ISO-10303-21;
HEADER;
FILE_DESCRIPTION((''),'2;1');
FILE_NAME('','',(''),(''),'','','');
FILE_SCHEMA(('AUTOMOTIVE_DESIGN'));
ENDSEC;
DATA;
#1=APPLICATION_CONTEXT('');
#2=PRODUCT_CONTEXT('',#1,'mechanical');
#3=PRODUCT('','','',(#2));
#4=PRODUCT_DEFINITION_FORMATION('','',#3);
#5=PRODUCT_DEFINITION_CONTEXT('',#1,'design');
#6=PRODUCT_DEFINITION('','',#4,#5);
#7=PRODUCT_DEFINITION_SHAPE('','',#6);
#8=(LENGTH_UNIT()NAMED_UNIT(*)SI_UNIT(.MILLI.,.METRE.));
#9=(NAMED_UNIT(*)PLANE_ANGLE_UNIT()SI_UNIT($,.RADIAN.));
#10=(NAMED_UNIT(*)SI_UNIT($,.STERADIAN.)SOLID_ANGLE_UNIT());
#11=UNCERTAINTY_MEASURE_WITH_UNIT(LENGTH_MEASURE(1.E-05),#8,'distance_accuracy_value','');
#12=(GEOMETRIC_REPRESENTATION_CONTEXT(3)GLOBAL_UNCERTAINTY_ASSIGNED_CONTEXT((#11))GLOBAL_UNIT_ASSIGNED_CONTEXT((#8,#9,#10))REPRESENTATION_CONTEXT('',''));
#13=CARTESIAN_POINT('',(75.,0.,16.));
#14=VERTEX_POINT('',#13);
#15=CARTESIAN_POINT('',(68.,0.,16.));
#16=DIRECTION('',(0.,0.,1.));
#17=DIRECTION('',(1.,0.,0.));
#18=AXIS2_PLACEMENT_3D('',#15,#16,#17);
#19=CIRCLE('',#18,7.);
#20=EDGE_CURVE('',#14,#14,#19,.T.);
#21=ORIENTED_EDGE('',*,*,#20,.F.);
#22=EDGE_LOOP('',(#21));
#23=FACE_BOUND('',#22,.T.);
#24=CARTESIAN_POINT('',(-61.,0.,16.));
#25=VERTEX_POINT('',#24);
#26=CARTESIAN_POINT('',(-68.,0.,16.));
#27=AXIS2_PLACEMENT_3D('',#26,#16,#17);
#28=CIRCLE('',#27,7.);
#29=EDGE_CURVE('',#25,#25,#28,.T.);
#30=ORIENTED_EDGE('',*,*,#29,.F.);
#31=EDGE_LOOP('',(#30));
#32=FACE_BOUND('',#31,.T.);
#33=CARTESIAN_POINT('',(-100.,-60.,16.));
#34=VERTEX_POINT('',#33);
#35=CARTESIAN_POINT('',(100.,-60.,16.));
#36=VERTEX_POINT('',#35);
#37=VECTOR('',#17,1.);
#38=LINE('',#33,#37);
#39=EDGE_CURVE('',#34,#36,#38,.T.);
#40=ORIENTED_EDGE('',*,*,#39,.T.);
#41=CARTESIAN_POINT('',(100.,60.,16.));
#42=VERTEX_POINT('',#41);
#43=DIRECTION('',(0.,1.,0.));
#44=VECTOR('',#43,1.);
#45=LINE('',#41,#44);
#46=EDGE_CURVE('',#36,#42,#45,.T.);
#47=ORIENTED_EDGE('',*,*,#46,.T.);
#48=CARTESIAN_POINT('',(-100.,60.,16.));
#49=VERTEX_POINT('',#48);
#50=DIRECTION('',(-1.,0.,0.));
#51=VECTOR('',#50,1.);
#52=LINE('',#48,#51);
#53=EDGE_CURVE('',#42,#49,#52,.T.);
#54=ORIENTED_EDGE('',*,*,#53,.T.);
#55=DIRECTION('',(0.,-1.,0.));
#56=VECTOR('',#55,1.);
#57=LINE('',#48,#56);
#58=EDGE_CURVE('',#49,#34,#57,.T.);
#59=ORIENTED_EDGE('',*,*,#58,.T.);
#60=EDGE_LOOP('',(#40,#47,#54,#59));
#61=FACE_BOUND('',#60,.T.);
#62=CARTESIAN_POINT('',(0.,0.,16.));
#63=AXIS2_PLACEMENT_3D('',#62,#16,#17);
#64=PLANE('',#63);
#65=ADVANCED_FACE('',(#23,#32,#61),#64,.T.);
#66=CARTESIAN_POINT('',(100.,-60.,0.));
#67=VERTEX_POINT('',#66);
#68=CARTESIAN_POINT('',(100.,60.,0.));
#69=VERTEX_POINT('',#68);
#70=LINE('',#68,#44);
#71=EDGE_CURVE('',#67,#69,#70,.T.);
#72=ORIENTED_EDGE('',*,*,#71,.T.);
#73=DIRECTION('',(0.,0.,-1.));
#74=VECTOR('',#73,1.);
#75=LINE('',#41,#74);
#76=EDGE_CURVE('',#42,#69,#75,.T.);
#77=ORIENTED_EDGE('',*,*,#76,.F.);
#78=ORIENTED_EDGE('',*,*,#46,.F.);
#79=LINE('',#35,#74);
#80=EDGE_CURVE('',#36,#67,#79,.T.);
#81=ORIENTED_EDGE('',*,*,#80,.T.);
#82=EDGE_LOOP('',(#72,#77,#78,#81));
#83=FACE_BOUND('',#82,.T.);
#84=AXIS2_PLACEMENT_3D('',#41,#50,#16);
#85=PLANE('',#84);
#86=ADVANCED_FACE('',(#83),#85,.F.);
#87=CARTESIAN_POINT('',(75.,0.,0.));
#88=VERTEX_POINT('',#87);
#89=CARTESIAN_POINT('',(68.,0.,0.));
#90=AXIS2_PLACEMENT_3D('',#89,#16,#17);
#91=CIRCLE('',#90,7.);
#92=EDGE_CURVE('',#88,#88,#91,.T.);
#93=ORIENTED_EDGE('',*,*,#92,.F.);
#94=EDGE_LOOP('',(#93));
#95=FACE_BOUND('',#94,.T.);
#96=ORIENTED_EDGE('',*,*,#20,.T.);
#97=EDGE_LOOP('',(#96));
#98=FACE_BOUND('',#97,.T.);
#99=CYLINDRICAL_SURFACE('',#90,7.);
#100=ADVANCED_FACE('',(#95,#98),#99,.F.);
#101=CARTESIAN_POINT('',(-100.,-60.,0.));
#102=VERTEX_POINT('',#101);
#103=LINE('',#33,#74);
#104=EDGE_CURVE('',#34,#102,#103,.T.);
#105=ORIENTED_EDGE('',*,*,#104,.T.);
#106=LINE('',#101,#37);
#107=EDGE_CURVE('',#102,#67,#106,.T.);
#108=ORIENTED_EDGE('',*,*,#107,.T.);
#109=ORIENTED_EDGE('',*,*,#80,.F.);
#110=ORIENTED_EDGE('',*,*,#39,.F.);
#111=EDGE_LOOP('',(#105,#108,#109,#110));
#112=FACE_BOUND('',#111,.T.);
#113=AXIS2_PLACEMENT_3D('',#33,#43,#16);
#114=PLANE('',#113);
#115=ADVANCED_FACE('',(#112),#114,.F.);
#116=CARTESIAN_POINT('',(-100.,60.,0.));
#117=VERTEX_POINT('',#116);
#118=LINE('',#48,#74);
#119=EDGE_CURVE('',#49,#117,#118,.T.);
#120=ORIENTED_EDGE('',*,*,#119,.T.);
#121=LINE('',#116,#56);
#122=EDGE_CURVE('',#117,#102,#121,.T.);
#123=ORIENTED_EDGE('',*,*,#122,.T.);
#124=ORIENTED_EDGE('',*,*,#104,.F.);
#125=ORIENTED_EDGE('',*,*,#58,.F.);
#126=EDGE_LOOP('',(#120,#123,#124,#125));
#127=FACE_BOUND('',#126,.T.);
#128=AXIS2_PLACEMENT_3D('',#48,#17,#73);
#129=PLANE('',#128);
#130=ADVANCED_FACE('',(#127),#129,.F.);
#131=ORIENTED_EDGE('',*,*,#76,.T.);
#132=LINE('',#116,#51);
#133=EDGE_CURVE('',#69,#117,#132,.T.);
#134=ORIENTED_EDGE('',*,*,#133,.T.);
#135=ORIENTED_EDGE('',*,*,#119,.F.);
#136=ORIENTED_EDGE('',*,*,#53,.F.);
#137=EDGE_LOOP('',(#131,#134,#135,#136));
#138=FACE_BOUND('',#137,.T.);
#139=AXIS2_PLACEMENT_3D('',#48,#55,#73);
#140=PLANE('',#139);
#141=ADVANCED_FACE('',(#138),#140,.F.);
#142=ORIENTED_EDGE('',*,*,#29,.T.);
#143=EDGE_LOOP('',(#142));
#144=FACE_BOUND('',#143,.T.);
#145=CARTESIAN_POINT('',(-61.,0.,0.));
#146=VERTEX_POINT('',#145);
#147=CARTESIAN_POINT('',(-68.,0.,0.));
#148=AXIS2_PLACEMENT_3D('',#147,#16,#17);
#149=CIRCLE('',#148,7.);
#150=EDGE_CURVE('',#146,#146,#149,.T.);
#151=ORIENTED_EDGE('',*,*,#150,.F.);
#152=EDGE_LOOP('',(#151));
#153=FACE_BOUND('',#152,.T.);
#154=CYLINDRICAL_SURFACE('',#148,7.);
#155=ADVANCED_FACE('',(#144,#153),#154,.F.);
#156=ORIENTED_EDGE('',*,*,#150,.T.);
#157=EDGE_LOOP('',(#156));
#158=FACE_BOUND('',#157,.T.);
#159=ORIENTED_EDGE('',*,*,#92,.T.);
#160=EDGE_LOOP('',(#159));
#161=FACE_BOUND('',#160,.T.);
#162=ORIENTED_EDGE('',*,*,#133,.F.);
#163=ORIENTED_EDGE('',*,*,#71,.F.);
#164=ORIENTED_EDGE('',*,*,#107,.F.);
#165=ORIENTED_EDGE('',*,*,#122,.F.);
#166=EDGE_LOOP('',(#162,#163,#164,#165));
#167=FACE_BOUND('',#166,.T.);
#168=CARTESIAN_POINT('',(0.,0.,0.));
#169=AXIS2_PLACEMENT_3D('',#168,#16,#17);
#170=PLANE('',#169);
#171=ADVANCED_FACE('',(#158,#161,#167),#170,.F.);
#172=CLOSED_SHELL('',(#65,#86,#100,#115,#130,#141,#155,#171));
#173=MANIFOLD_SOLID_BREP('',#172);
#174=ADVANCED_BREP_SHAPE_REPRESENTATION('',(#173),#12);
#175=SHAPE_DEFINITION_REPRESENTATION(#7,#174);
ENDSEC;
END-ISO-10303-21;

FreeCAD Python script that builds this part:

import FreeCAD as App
import Part
import Sketcher
Q = App.Units.Quantity

doc = App.newDocument("Part")
body = doc.addObject("PartDesign::Body", "Body")

# Sketch on XY plane
sketch1 = body.newObject("Sketcher::SketchObject", "Sketch")
sketch1.AttachmentSupport = (doc.getObject("XY_Plane"), [""])
sketch1.MapMode = "FlatFace"
sketch1.addGeometry(Part.LineSegment(App.Vector(-100, 60, 0), App.Vector(-100, -60, 0)), False)
sketch1.addGeometry(Part.LineSegment(App.Vector(-100, -60, 0), App.Vector(100, -60, 0)), False)
sketch1.addGeometry(Part.LineSegment(App.Vector(100, -60, 0), App.Vector(100, 60, 0)), False)
sketch1.addGeometry(Part.LineSegment(App.Vector(100, 60, 0), App.Vector(-100, 60, 0)), False)
sketch1.addConstraint(Sketcher.Constraint("Coincident", 0, 2, 1, 1))
sketch1.addConstraint(Sketcher.Constraint("Coincident", 1, 2, 2, 1))
sketch1.addConstraint(Sketcher.Constraint("Coincident", 2, 2, 3, 1))
sketch1.addConstraint(Sketcher.Constraint("Coincident", 3, 2, 0, 1))
sketch1.addConstraint(Sketcher.Constraint("Vertical", 0))
sketch1.addConstraint(Sketcher.Constraint("Horizontal", 1))
sketch1.addConstraint(Sketcher.Constraint("Vertical", 2))
sketch1.addConstraint(Sketcher.Constraint("Horizontal", 3))
sketch1.addConstraint(Sketcher.Constraint("Symmetric", 0, 2, 2, 2, -1, 1))
sketch1.addConstraint(Sketcher.Constraint("DistanceX", 1, 1, 1, 2, Q("200 mm")))
sketch1.addConstraint(Sketcher.Constraint("DistanceY", 0, 2, 0, 1, Q("120 mm")))
pad1 = body.newObject("PartDesign::Pad", "Pad")
pad1.Profile = sketch1
pad1.Length = 16

# Sketch on XY plane
sketch2 = body.newObject("Sketcher::SketchObject", "Sketch001")
sketch2.AttachmentSupport = (doc.getObject("XY_Plane"), [""])
sketch2.MapMode = "FlatFace"
sketch2.AttachmentOffset = App.Placement(App.Vector(0, 0, 16), App.Rotation())
sketch2.addGeometry(Part.Circle(App.Vector(-68, 0, 0), App.Vector(0, 0, 1), 7), False)
sketch2.addGeometry(Part.Circle(App.Vector(68, 0, 0), App.Vector(0, 0, 1), 7), False)
sketch2.addConstraint(Sketcher.Constraint("Equal", 0, 1))
sketch2.addConstraint(Sketcher.Constraint("Symmetric", 0, 3, 1, 3, -1, 1))
sketch2.addConstraint(Sketcher.Constraint("PointOnObject", 0, 3, -1))
sketch2.addConstraint(Sketcher.Constraint("Diameter", 0, Q("14 mm")))
sketch2.addConstraint(Sketcher.Constraint("DistanceX", 0, 3, -1, 1, Q("68 mm")))
pocket1 = body.newObject("PartDesign::Pocket", "Pocket")
pocket1.Profile = sketch2
pocket1.Type = "ThroughAll"

doc.recompute()
